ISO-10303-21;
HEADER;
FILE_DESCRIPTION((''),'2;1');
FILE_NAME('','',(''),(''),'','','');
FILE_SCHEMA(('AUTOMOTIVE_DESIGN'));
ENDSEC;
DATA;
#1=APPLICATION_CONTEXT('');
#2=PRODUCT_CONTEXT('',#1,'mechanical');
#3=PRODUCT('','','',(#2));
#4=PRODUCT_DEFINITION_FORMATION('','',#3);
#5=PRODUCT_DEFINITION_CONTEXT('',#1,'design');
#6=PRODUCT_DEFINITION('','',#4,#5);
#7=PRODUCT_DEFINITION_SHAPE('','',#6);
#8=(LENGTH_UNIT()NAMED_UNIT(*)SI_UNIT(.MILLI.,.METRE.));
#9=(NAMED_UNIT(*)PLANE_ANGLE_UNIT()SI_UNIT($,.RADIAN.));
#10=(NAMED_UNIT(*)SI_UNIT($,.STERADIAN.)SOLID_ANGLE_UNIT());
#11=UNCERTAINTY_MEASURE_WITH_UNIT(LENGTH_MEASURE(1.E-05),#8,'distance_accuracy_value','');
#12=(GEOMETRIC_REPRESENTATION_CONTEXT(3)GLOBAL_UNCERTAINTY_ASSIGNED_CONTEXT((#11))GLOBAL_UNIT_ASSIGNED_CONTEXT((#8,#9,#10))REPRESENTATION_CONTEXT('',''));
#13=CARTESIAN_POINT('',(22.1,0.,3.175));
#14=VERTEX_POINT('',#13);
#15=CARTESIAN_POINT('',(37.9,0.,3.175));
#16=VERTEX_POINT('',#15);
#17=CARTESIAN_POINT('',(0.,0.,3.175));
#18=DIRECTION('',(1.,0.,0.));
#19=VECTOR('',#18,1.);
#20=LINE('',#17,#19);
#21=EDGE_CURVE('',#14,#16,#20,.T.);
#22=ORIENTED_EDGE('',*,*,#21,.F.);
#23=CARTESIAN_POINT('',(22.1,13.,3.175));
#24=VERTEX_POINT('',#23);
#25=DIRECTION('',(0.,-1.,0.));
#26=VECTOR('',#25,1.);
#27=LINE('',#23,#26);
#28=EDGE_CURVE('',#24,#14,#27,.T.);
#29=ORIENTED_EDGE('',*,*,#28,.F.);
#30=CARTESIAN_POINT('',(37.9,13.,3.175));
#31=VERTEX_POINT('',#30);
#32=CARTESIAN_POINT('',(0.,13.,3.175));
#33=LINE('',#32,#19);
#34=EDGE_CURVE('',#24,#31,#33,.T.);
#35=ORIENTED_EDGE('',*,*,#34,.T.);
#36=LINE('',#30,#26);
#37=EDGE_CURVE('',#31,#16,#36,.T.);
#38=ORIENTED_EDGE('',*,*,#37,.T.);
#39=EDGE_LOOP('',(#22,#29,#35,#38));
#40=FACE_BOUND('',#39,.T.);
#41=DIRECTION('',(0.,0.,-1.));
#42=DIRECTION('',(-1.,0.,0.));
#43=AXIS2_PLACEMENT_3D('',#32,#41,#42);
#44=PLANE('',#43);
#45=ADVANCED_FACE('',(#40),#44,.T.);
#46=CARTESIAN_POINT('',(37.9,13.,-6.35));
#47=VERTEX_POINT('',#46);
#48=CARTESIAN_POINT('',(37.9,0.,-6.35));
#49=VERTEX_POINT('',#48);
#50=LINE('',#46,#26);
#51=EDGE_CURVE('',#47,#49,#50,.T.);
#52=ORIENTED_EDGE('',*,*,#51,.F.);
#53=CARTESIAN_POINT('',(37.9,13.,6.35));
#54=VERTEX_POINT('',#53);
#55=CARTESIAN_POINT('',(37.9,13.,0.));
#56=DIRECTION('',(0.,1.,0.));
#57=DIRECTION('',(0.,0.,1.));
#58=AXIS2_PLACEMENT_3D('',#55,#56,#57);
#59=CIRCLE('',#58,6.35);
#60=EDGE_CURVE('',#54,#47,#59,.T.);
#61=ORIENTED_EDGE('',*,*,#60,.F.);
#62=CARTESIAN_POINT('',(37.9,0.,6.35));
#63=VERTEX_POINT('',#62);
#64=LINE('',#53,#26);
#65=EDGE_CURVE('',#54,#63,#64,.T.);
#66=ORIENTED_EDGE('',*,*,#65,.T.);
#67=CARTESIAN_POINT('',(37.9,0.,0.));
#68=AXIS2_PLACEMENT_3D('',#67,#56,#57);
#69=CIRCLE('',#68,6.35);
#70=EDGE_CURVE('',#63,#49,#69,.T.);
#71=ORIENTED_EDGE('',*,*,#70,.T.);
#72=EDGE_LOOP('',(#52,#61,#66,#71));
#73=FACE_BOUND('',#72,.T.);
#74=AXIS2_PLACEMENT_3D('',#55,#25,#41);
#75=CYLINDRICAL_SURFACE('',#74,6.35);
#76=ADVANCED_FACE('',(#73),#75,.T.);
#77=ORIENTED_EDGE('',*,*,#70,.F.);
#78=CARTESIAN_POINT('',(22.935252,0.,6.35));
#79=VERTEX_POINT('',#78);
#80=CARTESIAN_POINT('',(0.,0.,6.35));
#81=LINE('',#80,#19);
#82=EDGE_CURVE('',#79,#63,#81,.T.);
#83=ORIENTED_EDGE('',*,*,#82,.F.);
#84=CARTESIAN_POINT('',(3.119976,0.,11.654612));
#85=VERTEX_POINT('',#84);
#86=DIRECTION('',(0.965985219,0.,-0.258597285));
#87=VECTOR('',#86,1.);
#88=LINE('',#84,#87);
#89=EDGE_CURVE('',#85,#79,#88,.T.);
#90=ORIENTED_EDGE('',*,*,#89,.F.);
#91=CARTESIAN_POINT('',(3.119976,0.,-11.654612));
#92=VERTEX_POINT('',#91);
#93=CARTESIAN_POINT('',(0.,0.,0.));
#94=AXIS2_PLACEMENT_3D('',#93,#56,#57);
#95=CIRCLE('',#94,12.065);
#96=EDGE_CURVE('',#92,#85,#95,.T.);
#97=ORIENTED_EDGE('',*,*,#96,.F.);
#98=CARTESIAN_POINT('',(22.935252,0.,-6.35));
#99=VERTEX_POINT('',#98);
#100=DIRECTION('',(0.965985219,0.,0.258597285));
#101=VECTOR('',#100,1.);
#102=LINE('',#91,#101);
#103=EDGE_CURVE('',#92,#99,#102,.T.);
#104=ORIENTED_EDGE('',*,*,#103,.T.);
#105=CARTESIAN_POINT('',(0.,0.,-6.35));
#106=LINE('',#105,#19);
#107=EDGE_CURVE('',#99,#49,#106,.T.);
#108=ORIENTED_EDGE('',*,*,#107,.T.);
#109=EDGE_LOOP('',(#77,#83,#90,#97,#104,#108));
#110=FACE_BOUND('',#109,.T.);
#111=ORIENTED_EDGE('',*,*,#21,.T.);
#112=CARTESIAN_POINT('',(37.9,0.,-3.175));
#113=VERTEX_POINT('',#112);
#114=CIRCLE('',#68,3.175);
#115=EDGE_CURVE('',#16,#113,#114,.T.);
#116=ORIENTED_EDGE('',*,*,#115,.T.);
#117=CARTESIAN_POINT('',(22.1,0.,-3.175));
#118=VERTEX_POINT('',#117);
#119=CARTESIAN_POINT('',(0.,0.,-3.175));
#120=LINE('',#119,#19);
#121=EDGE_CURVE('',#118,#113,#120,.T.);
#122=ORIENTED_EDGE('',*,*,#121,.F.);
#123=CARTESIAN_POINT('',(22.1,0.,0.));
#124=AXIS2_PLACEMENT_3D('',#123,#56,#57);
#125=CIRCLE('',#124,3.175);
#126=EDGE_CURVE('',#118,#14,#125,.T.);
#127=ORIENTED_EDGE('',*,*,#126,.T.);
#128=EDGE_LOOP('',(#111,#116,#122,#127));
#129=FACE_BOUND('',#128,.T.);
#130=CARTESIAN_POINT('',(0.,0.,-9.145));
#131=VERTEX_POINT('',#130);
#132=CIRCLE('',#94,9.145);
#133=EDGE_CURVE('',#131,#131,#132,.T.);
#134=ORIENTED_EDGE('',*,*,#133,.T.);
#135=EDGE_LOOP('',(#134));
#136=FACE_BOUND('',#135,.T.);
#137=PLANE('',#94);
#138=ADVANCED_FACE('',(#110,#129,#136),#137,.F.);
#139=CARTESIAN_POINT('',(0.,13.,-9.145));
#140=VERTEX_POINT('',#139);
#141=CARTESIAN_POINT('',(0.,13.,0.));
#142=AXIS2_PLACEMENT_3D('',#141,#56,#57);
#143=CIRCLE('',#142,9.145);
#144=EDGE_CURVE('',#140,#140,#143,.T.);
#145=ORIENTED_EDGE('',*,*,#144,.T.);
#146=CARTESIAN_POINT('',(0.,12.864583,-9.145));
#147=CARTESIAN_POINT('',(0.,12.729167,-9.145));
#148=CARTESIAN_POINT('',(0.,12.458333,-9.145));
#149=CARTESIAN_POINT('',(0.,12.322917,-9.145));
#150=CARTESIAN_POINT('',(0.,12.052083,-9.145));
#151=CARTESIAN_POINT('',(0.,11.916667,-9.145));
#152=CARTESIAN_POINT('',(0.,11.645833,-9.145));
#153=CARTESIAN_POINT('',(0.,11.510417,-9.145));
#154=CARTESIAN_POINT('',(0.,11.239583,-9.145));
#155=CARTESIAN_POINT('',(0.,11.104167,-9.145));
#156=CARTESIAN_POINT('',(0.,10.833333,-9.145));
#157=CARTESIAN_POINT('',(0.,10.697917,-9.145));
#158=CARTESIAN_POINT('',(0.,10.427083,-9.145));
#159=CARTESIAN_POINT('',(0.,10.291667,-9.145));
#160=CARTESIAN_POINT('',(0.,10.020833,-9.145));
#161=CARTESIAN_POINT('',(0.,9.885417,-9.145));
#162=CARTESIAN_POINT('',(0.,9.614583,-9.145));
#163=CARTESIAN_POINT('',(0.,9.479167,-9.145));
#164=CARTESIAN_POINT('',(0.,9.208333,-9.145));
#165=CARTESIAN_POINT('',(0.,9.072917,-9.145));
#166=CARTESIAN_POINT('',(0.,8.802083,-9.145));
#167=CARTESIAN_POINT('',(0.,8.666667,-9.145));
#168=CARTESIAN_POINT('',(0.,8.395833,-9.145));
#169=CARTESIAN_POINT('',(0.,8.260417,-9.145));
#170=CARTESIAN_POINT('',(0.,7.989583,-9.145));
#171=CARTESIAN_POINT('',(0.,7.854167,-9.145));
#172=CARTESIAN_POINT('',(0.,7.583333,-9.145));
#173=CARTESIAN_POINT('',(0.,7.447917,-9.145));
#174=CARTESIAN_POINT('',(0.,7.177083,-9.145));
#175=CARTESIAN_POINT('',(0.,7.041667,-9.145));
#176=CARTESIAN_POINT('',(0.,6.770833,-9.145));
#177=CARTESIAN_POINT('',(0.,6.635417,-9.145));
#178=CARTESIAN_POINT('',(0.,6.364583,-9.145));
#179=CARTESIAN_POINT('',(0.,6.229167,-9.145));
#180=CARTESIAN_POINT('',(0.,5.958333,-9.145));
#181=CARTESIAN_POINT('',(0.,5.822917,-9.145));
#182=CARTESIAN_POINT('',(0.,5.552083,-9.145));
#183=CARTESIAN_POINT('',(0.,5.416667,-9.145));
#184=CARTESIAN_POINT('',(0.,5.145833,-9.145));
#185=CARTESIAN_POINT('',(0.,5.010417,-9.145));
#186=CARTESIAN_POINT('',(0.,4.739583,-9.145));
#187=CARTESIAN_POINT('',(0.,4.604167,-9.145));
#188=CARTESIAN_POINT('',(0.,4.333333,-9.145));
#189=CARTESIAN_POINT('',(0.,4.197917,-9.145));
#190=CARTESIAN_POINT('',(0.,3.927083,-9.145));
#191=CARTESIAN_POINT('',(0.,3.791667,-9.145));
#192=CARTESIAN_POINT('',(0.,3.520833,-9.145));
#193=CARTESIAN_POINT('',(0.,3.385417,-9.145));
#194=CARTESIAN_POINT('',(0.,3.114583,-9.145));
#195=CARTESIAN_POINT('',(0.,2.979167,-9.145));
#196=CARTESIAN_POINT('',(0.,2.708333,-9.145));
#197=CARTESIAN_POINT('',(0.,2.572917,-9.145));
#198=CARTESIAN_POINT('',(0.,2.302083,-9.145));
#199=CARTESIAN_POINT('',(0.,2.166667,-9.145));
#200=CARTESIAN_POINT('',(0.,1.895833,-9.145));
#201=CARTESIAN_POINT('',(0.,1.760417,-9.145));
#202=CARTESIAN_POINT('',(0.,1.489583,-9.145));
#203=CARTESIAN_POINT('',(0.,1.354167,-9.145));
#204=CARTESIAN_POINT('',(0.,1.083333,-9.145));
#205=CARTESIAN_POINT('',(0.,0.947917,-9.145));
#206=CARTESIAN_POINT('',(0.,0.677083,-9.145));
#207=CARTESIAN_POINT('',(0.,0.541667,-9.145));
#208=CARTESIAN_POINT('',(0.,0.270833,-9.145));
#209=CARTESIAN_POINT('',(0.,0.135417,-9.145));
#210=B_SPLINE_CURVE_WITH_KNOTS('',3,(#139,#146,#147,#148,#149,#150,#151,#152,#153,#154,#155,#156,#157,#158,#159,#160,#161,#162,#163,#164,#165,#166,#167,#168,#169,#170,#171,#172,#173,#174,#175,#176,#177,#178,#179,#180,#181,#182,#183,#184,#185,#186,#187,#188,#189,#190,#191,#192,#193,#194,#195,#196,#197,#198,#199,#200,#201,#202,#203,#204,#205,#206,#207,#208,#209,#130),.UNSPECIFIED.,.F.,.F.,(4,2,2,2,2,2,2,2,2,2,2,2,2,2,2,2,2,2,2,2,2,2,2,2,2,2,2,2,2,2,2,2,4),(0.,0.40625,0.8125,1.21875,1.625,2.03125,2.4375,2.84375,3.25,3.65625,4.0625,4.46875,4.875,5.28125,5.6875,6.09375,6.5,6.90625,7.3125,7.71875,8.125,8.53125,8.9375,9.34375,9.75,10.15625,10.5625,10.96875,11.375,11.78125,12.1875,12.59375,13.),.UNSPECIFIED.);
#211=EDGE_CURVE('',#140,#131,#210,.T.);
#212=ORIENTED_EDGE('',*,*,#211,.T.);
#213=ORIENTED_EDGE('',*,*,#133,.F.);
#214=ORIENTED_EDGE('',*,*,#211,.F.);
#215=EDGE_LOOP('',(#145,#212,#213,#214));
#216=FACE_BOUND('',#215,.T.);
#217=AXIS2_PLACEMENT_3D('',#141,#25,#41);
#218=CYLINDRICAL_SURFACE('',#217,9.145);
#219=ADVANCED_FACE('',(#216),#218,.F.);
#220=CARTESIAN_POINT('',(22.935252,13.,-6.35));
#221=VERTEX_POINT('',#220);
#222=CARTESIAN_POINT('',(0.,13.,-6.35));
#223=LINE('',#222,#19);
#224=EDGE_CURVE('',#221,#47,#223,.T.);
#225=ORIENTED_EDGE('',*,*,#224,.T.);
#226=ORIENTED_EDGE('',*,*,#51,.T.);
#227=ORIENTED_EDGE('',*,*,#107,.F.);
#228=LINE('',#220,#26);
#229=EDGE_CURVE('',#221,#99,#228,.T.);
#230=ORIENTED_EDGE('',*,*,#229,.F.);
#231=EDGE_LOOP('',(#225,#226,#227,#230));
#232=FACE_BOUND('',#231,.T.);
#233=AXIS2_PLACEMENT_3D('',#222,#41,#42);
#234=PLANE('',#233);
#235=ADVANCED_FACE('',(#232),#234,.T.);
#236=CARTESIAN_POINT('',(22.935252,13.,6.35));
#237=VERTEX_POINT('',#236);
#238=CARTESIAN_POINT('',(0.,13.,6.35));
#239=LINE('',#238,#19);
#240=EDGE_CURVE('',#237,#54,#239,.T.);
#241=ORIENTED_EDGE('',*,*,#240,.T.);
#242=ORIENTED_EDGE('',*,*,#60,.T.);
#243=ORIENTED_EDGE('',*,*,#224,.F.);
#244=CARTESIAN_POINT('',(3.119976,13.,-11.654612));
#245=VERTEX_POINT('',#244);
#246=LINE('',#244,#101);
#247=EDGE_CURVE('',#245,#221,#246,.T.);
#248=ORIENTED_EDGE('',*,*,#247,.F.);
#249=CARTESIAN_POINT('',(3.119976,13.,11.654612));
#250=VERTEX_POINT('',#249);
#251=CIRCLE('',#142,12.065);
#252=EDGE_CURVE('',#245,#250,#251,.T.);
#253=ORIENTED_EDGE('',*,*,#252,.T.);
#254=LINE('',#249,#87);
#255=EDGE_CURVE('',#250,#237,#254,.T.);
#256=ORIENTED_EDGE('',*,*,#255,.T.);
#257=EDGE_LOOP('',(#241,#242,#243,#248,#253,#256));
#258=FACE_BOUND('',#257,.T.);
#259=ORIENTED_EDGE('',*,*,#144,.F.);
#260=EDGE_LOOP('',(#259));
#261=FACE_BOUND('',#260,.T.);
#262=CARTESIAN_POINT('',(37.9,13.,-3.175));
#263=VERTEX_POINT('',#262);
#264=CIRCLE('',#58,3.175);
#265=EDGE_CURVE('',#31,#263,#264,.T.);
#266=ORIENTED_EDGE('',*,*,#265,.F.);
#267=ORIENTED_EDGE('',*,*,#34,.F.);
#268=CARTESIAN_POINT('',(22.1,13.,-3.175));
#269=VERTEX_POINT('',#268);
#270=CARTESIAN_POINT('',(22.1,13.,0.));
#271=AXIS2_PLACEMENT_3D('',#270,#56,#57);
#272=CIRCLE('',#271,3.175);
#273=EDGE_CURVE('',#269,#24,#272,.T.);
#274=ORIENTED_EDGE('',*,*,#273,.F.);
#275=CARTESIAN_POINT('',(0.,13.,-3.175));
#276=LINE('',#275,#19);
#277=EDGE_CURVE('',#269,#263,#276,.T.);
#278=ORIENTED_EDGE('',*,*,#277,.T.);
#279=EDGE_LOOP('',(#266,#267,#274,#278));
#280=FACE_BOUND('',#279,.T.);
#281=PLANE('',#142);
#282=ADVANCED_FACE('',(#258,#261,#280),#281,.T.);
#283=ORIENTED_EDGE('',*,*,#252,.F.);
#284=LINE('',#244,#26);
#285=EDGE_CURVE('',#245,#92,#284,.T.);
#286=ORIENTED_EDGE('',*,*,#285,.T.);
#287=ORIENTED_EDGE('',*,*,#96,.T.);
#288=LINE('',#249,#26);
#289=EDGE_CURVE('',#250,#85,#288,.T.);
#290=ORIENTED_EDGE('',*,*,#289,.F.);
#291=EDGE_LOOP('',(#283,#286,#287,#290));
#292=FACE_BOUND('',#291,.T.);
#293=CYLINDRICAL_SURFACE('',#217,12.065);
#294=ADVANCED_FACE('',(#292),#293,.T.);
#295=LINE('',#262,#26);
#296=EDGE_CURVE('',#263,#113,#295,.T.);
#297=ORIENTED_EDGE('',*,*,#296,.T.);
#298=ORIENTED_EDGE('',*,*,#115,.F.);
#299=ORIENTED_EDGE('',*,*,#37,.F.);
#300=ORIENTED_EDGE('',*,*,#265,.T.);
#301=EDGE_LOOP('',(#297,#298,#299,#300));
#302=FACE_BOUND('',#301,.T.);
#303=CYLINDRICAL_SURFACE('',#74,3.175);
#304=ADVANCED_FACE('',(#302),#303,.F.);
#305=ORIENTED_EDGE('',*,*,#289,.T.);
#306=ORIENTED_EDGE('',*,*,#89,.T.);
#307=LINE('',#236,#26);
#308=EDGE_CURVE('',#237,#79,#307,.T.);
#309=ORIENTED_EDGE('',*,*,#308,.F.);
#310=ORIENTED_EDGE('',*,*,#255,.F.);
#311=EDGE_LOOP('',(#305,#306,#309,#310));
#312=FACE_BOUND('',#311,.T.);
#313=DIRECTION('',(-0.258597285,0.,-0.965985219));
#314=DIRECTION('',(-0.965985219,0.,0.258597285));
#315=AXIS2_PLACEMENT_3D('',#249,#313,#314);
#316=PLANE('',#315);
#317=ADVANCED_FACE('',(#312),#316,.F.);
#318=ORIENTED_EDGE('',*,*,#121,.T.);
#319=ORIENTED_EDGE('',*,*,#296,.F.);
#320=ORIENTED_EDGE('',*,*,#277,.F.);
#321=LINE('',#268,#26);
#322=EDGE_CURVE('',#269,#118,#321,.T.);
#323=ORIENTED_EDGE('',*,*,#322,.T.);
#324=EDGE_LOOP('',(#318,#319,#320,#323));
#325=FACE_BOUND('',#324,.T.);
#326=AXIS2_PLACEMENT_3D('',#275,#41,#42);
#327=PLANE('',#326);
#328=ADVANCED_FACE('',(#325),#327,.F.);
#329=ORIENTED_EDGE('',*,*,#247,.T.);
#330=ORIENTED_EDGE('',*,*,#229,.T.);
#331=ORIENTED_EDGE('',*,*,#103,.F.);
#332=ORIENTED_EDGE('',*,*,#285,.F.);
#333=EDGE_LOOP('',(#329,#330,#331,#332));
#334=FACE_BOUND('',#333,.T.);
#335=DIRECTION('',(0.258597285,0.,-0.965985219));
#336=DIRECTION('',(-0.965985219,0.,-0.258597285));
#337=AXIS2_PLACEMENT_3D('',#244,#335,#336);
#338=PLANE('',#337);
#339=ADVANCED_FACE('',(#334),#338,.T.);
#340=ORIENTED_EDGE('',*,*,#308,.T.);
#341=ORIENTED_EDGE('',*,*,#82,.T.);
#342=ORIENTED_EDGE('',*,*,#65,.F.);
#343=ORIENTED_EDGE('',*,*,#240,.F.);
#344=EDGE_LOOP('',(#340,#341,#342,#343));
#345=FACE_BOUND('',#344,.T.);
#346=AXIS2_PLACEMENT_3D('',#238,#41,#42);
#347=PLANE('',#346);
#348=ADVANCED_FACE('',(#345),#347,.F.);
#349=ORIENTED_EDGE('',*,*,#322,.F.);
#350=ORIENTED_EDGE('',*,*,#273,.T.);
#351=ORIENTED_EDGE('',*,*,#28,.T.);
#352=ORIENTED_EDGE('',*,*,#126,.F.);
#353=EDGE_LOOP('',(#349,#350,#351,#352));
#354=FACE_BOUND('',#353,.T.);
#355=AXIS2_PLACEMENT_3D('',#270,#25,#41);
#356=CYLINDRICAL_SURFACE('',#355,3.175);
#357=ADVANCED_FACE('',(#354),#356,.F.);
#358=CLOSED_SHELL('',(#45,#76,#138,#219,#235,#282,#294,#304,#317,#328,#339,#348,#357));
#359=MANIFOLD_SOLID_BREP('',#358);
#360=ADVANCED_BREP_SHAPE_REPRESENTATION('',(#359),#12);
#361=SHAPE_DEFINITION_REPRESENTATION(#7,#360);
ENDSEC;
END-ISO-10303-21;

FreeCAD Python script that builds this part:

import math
import FreeCAD as App
import Part
import Sketcher
Q = App.Units.Quantity

doc = App.newDocument("Part")
body = doc.addObject("PartDesign::Body", "Body")

sketch1 = doc.addObject("Sketcher::SketchObject", "Sketch")
body.addObject(sketch1)
sketch1.AttachmentSupport = (doc.XZ_Plane, [""])
sketch1.MapMode = "FlatFace"
sketch1.addGeometry([
    Part.LineSegment(App.Vector(22.9, -6.3, 0), App.Vector(3.1, -11.7, 0)),
    Part.ArcOfCircle(Part.Circle(App.Vector(0, 0, 0), App.Vector(0, 0, 1), 12.1), math.radians(75), math.radians(285)),
    Part.LineSegment(App.Vector(3.1, 11.7, 0), App.Vector(22.9, 6.3, 0)),
    Part.LineSegment(App.Vector(22.9, 6.3, 0), App.Vector(37.9, 6.3, 0)),
    Part.ArcOfCircle(Part.Circle(App.Vector(37.9, 0, 0), App.Vector(0, 0, 1), 6.3), math.radians(-90), math.radians(90)),
    Part.LineSegment(App.Vector(37.9, -6.3, 0), App.Vector(22.9, -6.3, 0)),
    Part.Circle(App.Vector(0, 0, 0), App.Vector(0, 0, 1), 9.1),
    Part.ArcOfCircle(Part.Circle(App.Vector(37.9, 0, 0), App.Vector(0, 0, 1), 3.2), math.radians(-90), math.radians(90)),
    Part.LineSegment(App.Vector(37.9, 3.2, 0), App.Vector(22.1, 3.2, 0)),
    Part.ArcOfCircle(Part.Circle(App.Vector(22.1, 0, 0), App.Vector(0, 0, 1), 3.2), math.radians(90), math.radians(270)),
    Part.LineSegment(App.Vector(22.1, -3.2, 0), App.Vector(37.9, -3.2, 0)),
], False)
sketch1.addConstraint([
    Sketcher.Constraint("Tangent", 0, 2, 1, 2),
    Sketcher.Constraint("Tangent", 1, 1, 2, 1),
    Sketcher.Constraint("Coincident", 2, 2, 3, 1),
    Sketcher.Constraint("Tangent", 3, 2, 4, 2),
    Sketcher.Constraint("Tangent", 4, 1, 5, 1),
    Sketcher.Constraint("Coincident", 5, 2, 0, 1),
    Sketcher.Constraint("Tangent", 7, 2, 8, 1),
    Sketcher.Constraint("Tangent", 8, 2, 9, 1),
    Sketcher.Constraint("Tangent", 9, 2, 10, 1),
    Sketcher.Constraint("Tangent", 10, 2, 7, 1),
    Sketcher.Constraint("Horizontal", 3),
    Sketcher.Constraint("Horizontal", 5),
    Sketcher.Constraint("Horizontal", 8),
    Sketcher.Constraint("Horizontal", 10),
    Sketcher.Constraint("Coincident", 1, 3, -1, 1),
    Sketcher.Constraint("Coincident", 6, 3, -1, 1),
    Sketcher.Constraint("Coincident", 7, 3, 4, 3),
    Sketcher.Constraint("Symmetric", 2, 2, 5, 2, -1),
    Sketcher.Constraint("Radius", 4, Q("0.25 in")),
    Sketcher.Constraint("Radius", 1, Q("0.475 in")),
    Sketcher.Constraint("Radius", 7, Q("0.125 in")),
    Sketcher.Constraint("Diameter", 6, Q("18.29 mm")),
    Sketcher.Constraint("DistanceX", 8, 2, 8, 1, Q("15.8 mm")),
    Sketcher.Constraint("DistanceX", 3, 1, 3, 2, Q("14.964748 mm")),
    Sketcher.Constraint("DistanceX", -1, 1, 4, 3, Q("37.9 mm")),
])
pad1 = doc.addObject("PartDesign::Pad", "Pad")
body.addObject(pad1)
pad1.Profile = sketch1
pad1.Length = 13
pad1.Reversed = True

doc.recompute()
